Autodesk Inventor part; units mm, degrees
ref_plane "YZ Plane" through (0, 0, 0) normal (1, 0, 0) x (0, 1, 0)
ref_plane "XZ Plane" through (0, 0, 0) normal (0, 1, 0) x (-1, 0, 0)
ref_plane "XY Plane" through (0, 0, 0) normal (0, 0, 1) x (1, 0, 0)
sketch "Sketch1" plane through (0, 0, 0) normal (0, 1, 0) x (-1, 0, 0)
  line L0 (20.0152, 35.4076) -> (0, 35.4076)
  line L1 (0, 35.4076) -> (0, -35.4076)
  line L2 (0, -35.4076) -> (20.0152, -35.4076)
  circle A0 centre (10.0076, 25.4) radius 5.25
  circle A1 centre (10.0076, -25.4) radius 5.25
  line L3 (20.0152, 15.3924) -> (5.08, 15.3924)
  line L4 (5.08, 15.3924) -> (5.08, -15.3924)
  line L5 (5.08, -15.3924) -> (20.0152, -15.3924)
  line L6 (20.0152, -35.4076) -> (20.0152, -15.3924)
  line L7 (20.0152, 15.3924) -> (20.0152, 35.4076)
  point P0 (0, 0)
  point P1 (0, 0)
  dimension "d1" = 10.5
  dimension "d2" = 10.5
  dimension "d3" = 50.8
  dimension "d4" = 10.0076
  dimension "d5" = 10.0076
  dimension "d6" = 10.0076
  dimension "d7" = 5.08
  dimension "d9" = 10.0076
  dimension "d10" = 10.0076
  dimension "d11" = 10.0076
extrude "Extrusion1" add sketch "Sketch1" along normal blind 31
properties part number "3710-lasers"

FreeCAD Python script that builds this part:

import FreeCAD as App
import Part
import Sketcher
Q = App.Units.Quantity


def add_polygon(sketch, points):
    """Adds a closed chain of lines whose ends are joined by coincident constraints."""
    first, n = sketch.GeometryCount, len(points)
    for a, b in zip(points, points[1:] + points[:1]):
        sketch.addGeometry(Part.LineSegment(App.Vector(*a, 0), App.Vector(*b, 0)), False)
    for i in range(n):
        sketch.addConstraint(Sketcher.Constraint("Coincident", first + i, 2, first + (i + 1) % n, 1))

doc = App.newDocument("Part")
body = doc.addObject("PartDesign::Body", "Body")

sketch1 = doc.addObject("Sketcher::SketchObject", "Sketch")
body.addObject(sketch1)
sketch1.AttachmentSupport = (doc.XZ_Plane, [""])
sketch1.MapMode = "FlatFace"
add_polygon(sketch1, [(-20, 15), (-20, 35), (0, 35), (0, -35), (-20, -35), (-20, -15), (-5, -15), (-5, 15)])
sketch1.addGeometry(Part.Circle(App.Vector(-10, -25, 0), App.Vector(0, 0, 1), 5), False)
sketch1.addGeometry(Part.Circle(App.Vector(-10, 25, 0), App.Vector(0, 0, 1), 5), False)
sketch1.addConstraint(Sketcher.Constraint("Vertical", 0))
sketch1.addConstraint(Sketcher.Constraint("Horizontal", 1))
sketch1.addConstraint(Sketcher.Constraint("Vertical", 2))
sketch1.addConstraint(Sketcher.Constraint("Horizontal", 3))
sketch1.addConstraint(Sketcher.Constraint("Vertical", 4))
sketch1.addConstraint(Sketcher.Constraint("Horizontal", 5))
sketch1.addConstraint(Sketcher.Constraint("Vertical", 6))
sketch1.addConstraint(Sketcher.Constraint("Horizontal", 7))
sketch1.addConstraint(Sketcher.Constraint("Equal", 8, 9))
sketch1.addConstraint(Sketcher.Constraint("Symmetric", 1, 2, 2, 2, -1, 1))
sketch1.addConstraint(Sketcher.Constraint("Symmetric", 8, 3, 9, 3, -1))
sketch1.addConstraint(Sketcher.Constraint("Symmetric", 4, 2, 7, 2, -1))
sketch1.addConstraint(Sketcher.Constraint("Equal", 3, 0))
sketch1.addConstraint(Sketcher.Constraint("DistanceY", 8, 3, 9, 3, Q("2 in")))
sketch1.addConstraint(Sketcher.Constraint("DistanceY", 4, 2, 0, 2, Q("2 in")))
sketch1.addConstraint(Sketcher.Constraint("DistanceX", 5, 2, -1, 1, Q("0.2 in")))
sketch1.addConstraint(Sketcher.Constraint("Diameter", 8, 10.5))
sketch1.addConstraint(Sketcher.Constraint("DistanceX", 8, 3, -1, 1, Q("0.394 in")))
sketch1.addConstraint(Sketcher.Constraint("DistanceX", 0, 2, 9, 3, Q("0.394 in")))
pad1 = doc.addObject("PartDesign::Pad", "Pad")
body.addObject(pad1)
pad1.Profile = sketch1
pad1.Length = 31
pad1.Reversed = True

doc.recompute()
